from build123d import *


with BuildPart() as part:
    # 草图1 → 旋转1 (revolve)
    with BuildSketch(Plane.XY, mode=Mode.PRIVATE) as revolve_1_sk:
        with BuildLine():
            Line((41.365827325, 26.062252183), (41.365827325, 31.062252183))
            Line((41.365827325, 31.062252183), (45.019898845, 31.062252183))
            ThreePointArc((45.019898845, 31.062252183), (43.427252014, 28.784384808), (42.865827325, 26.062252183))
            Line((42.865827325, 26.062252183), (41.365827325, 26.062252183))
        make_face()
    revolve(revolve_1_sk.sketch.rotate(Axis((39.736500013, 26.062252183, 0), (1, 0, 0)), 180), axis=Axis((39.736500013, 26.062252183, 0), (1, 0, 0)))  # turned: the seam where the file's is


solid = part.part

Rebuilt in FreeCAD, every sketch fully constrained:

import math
import FreeCAD as App
import Part
import Sketcher

V = App.Vector
Q = App.Units.Quantity

doc = App.newDocument("Part")
body = doc.addObject("PartDesign::Body", "Body")

# Sketch on XY plane
sketch1 = body.newObject("Sketcher::SketchObject", "Sketch")
sketch1.AttachmentSupport = (doc.getObject("XY_Plane"), [""])
sketch1.MapMode = "FlatFace"
sketch1.addGeometry(Part.LineSegment(V(41.4, 31.1, 0), V(41.4, 26.1, 0)), False)
sketch1.addGeometry(Part.LineSegment(V(41.4, 26.1, 0), V(42.9, 26.1, 0)), False)
sketch1.addGeometry(Part.ArcOfCircle(Part.Circle(V(49.7, 26.1, 0), V(0, 0, 1), 6.9), math.radians(133), math.radians(180)), False)
sketch1.addGeometry(Part.LineSegment(V(45, 31.1, 0), V(41.4, 31.1, 0)), False)
sketch1.addGeometry(Part.LineSegment(V(41.4, 26.1, 0), V(49.7, 26.1, 0)), True)  # axis
sketch1.addConstraint(Sketcher.Constraint("Coincident", 0, 2, 1, 1))
sketch1.addConstraint(Sketcher.Constraint("Coincident", 1, 2, 2, 2))
sketch1.addConstraint(Sketcher.Constraint("Coincident", 2, 1, 3, 1))
sketch1.addConstraint(Sketcher.Constraint("Coincident", 3, 2, 0, 1))
sketch1.addConstraint(Sketcher.Constraint("Vertical", 0))
sketch1.addConstraint(Sketcher.Constraint("Horizontal", 1))
sketch1.addConstraint(Sketcher.Constraint("Horizontal", 3))
sketch1.addConstraint(Sketcher.Constraint("Horizontal", 4))
sketch1.addConstraint(Sketcher.Constraint("Coincident", 4, 1, 0, 2))
sketch1.addConstraint(Sketcher.Constraint("Coincident", 4, 2, 2, 3))
sketch1.addConstraint(Sketcher.Constraint("DistanceY", 0, 2, 0, 1, Q("5 mm")))
sketch1.addConstraint(Sketcher.Constraint("Radius", 2, Q("6.88 mm")))
sketch1.addConstraint(Sketcher.Constraint("DistanceX", 1, 1, 1, 2, Q("1.5 mm")))
sketch1.addConstraint(Sketcher.Constraint("DistanceX", -1, 1, 2, 1, Q("45.019899 mm")))
sketch1.addConstraint(Sketcher.Constraint("DistanceY", -1, 1, 2, 3, Q("26.062252 mm")))
revolution = body.newObject("PartDesign::Revolution", "Revolution")
revolution.Profile = sketch1
revolution.ReferenceAxis = (sketch1, ["Axis0"])
revolution.Angle = 360

doc.recompute()
